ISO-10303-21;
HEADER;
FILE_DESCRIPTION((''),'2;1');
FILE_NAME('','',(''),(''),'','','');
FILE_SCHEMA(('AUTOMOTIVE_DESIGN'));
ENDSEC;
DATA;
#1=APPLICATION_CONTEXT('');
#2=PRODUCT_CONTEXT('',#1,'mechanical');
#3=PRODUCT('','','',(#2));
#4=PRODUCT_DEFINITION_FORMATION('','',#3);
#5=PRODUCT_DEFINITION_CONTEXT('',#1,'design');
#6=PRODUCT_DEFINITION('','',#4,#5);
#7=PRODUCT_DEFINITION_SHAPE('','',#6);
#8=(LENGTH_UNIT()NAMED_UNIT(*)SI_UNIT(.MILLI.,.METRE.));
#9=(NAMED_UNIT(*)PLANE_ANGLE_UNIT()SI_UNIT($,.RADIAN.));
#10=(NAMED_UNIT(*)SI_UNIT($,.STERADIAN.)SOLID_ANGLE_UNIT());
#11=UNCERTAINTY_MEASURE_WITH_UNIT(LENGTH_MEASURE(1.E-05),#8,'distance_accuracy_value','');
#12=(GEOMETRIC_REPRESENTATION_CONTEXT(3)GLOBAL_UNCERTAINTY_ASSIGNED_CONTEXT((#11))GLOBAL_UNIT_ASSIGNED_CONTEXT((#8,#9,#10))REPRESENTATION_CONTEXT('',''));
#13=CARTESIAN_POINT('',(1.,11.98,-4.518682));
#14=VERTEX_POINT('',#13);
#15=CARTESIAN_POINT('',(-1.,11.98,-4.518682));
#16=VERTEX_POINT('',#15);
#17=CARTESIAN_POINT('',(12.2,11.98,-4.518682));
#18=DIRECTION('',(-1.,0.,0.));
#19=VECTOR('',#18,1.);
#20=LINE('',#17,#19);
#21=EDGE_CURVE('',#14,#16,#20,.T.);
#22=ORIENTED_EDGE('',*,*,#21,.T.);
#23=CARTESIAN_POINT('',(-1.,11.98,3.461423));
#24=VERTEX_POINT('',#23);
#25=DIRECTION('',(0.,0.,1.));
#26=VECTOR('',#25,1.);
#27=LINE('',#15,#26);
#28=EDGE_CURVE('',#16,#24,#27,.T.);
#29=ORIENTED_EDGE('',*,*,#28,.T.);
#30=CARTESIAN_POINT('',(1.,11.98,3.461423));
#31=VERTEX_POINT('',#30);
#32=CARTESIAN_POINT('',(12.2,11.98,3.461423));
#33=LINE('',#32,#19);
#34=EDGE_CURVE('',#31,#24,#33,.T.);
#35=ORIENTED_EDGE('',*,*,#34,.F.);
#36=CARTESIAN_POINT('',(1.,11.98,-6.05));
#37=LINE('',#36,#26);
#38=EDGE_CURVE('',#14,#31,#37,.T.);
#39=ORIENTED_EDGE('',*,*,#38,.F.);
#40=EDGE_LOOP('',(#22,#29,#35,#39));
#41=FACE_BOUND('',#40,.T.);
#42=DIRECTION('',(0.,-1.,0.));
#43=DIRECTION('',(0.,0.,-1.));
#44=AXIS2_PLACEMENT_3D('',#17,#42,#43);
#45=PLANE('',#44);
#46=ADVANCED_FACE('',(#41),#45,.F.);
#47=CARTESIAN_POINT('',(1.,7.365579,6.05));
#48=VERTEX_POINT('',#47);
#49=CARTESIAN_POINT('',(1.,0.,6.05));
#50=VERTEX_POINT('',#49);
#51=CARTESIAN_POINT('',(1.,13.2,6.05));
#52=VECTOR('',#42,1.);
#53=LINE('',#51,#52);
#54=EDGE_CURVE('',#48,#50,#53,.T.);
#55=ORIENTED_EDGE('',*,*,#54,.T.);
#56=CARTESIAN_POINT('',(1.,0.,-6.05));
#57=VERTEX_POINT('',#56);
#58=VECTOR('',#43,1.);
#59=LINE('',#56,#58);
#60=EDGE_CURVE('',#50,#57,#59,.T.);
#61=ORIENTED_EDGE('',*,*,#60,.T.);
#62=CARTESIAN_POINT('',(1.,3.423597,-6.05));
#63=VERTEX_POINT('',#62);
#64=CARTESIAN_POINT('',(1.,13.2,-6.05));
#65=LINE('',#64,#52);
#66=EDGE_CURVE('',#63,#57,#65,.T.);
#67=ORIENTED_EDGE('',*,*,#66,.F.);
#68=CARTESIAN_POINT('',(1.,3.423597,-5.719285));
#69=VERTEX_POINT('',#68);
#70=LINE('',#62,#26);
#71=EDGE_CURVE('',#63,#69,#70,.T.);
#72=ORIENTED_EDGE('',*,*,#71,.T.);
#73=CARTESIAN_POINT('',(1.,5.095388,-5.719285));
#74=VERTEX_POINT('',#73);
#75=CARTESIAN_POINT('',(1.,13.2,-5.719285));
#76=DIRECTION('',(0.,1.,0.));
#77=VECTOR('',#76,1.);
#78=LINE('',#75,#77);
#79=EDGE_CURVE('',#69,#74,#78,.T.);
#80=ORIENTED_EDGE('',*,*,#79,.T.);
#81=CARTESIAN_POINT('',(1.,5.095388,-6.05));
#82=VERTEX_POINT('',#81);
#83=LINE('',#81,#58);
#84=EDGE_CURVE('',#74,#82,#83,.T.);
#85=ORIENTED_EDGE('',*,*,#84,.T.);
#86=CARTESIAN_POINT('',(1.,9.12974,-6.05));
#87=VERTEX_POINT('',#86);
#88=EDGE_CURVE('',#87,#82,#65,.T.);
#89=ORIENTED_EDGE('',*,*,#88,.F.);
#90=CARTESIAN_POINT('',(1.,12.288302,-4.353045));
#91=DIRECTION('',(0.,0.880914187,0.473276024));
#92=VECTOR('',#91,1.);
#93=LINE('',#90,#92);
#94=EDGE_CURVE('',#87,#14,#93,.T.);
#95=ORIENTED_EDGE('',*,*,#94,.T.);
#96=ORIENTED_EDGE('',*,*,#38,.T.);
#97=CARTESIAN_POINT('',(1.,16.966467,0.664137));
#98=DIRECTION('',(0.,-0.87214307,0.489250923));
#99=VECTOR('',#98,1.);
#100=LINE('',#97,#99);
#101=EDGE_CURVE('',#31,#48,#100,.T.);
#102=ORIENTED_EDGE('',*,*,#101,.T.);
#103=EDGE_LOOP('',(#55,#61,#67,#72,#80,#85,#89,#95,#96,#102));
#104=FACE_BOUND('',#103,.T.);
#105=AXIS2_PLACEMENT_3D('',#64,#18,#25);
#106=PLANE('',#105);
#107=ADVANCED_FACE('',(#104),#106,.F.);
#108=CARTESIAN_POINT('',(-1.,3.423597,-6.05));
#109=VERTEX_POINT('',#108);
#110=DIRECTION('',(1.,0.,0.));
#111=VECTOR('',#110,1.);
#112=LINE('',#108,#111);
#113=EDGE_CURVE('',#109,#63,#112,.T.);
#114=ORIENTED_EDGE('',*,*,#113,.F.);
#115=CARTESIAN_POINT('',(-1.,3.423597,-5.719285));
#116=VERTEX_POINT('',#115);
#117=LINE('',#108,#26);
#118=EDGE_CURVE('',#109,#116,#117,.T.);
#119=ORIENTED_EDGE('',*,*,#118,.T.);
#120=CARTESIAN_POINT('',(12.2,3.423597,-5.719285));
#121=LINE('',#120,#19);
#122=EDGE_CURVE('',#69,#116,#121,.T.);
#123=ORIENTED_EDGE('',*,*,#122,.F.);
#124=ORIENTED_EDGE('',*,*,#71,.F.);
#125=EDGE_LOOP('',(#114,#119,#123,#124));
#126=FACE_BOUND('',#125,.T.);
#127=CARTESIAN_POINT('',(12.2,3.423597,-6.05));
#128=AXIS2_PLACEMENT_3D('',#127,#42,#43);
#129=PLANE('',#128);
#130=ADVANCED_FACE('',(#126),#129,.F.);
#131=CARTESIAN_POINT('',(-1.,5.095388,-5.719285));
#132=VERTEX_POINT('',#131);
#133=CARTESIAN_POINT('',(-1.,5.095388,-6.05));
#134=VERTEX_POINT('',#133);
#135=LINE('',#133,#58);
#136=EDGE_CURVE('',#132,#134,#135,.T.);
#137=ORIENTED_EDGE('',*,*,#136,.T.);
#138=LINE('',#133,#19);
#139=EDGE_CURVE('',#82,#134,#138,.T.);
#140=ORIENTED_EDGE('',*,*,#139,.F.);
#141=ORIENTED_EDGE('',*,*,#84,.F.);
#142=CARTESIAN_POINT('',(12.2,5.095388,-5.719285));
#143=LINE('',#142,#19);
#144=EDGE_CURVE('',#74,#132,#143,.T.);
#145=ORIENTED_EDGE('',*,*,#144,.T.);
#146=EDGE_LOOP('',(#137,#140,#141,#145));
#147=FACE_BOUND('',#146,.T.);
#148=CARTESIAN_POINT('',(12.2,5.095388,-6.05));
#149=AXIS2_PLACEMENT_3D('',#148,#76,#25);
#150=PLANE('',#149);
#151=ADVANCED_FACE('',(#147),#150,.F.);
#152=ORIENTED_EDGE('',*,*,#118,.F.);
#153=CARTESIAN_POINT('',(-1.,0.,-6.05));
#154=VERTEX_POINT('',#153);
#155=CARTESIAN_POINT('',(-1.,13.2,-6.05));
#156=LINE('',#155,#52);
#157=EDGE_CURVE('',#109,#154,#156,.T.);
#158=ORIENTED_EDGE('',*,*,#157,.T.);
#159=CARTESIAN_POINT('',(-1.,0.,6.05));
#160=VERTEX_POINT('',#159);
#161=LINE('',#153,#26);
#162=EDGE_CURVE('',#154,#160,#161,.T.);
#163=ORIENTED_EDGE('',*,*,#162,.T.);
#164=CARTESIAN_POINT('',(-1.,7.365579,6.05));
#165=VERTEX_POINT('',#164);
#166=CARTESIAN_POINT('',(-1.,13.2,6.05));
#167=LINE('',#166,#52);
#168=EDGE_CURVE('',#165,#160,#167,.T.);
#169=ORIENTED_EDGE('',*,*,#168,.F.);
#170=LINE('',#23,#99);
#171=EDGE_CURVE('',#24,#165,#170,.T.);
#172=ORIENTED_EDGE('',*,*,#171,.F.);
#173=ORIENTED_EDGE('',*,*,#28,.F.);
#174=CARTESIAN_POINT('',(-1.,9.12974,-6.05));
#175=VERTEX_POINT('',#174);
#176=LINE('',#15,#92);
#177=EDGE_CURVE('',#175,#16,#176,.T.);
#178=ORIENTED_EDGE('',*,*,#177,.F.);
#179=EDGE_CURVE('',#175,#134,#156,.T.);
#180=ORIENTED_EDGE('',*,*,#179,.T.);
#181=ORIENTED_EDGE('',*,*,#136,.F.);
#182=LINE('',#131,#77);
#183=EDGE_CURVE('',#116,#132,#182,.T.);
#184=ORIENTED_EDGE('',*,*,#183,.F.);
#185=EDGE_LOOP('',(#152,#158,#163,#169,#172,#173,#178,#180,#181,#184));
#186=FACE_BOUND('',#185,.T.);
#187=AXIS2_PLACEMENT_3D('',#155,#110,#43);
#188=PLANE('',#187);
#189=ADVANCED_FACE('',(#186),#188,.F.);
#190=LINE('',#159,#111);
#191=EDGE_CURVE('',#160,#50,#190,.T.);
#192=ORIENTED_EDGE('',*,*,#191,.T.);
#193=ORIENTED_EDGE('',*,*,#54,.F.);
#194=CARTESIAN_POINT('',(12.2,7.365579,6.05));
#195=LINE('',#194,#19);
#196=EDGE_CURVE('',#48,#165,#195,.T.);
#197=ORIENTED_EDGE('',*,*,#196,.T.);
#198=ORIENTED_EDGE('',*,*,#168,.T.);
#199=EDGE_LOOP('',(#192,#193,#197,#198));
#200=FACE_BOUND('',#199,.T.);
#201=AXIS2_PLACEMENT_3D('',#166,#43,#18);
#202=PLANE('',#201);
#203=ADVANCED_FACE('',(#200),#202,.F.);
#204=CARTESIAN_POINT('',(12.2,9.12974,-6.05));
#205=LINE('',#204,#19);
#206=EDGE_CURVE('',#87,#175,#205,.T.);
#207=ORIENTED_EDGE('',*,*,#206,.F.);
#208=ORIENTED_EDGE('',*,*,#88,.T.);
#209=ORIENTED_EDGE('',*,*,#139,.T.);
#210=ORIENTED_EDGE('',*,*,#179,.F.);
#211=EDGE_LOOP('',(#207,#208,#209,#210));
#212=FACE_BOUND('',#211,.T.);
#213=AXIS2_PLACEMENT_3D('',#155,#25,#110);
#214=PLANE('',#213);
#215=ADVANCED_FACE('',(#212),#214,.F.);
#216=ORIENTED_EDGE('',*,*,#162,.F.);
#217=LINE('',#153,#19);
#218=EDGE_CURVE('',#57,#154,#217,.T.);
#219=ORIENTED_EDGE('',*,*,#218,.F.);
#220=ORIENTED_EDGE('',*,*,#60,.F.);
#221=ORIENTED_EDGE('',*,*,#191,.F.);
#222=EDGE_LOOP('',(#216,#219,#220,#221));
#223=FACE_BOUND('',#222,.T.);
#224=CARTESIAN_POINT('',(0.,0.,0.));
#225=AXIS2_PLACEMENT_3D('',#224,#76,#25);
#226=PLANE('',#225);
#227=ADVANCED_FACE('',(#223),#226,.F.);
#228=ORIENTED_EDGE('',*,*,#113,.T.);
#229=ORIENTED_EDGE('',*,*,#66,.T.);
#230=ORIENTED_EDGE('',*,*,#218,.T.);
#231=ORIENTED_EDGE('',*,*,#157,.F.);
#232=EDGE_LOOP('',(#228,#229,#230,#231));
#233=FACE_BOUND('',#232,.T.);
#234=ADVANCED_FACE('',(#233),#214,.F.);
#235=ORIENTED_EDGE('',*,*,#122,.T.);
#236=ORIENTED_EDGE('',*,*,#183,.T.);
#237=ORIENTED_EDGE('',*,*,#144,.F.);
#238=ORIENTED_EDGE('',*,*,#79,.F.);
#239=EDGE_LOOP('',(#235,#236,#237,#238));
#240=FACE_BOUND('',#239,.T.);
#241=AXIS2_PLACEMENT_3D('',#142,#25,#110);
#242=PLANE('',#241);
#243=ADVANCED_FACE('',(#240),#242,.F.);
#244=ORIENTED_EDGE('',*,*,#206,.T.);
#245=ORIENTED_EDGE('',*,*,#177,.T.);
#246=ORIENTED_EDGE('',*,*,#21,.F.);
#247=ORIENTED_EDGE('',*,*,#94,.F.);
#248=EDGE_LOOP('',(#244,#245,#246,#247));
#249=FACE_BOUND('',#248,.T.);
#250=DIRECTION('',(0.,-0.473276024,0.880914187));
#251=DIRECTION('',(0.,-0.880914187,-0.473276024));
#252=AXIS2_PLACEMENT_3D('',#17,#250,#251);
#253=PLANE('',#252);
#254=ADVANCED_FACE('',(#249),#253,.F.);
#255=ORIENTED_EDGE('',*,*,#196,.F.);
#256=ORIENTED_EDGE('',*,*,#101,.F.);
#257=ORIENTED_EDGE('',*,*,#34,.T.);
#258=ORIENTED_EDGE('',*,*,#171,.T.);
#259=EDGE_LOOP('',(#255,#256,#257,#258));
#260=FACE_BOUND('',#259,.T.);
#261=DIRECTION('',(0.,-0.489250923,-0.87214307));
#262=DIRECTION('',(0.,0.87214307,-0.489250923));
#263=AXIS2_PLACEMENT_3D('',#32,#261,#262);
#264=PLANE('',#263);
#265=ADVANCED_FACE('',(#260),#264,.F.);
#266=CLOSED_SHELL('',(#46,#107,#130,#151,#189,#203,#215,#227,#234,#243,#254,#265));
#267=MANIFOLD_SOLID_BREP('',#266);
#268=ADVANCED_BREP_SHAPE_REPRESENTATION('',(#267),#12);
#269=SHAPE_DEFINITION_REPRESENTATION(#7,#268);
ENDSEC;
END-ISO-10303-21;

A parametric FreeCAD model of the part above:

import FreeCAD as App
import Part
import Sketcher
Q = App.Units.Quantity


def add_polygon(sketch, points):
    """Adds a closed chain of lines whose ends are joined by coincident constraints."""
    first, n = sketch.GeometryCount, len(points)
    for a, b in zip(points, points[1:] + points[:1]):
        sketch.addGeometry(Part.LineSegment(App.Vector(*a, 0), App.Vector(*b, 0)), False)
    for i in range(n):
        sketch.addConstraint(Sketcher.Constraint("Coincident", first + i, 2, first + (i + 1) % n, 1))

doc = App.newDocument("Part")
body = doc.addObject("PartDesign::Body", "Body")

# Sketch on XZ plane
sketch1 = body.newObject("Sketcher::SketchObject", "Sketch")
sketch1.AttachmentSupport = (doc.getObject("XZ_Plane"), [""])
sketch1.MapMode = "FlatFace"
add_polygon(sketch1, [(-1, -6), (-1, 6), (1, 6), (1, -6)])  # lines 0-3
sketch1.addConstraint([
    Sketcher.Constraint("Vertical", 0),
    Sketcher.Constraint("Horizontal", 1),
    Sketcher.Constraint("Vertical", 2),
    Sketcher.Constraint("Horizontal", 3),
    Sketcher.Constraint("Symmetric", 0, 2, 2, 2, -1, 1),
    Sketcher.Constraint("DistanceX", 1, 1, 1, 2, Q("2 mm")),
    Sketcher.Constraint("DistanceY", 0, 1, 0, 2, Q("12.1 mm")),
])
pad1 = body.newObject("PartDesign::Pad", "Pad")
pad1.Profile = sketch1
pad1.Length = 13.2
pad1.Reversed = True

# Sketch on YZ plane
sketch2 = body.newObject("Sketcher::SketchObject", "Sketch001")
sketch2.AttachmentSupport = (doc.getObject("YZ_Plane"), [""])
sketch2.MapMode = "FlatFace"
sketch2.AttachmentOffset = App.Placement(App.Vector(0, 0, -1), App.Rotation())
add_polygon(sketch2, [(5.1, -6.05), (3.42, -6.05), (3.42, -5.72), (5.1, -5.72)])  # lines 0-3
add_polygon(sketch2, [(9.13, -6.05), (11.98, -4.52), (11.98, 3.46), (7.37, 6.05), (13.2, 6.05), (13.2, -6.05)])  # lines 4-9
sketch2.addConstraint([
    Sketcher.Constraint("Horizontal", 0),
    Sketcher.Constraint("Vertical", 1),
    Sketcher.Constraint("Horizontal", 2),
    Sketcher.Constraint("Vertical", 3),
    Sketcher.Constraint("Vertical", 5),
    Sketcher.Constraint("Horizontal", 7),
    Sketcher.Constraint("Vertical", 8),
    Sketcher.Constraint("Horizontal", 9),
    Sketcher.Constraint("Horizontal", 3, 2, 8, 2),
    Sketcher.Constraint("DistanceY", 8, 2, 8, 1, Q("12.1 mm")),
    Sketcher.Constraint("DistanceX", -1, 1, 7, 2, Q("13.2 mm")),
    Sketcher.Constraint("DistanceY", 0, 2, -1, 1, Q("6.05 mm")),
    Sketcher.Constraint("DistanceX", -1, 1, 4, 2, Q("11.98 mm")),
    Sketcher.Constraint("Distance", 6, Q("5.290899 mm")),
    Sketcher.Constraint("DistanceX", 0, 2, 0, 1, Q("1.671791 mm")),
    Sketcher.Constraint("DistanceX", 7, 1, 7, 2, Q("5.834421 mm")),
    Sketcher.Constraint("DistanceX", 9, 2, 9, 1, Q("4.07026 mm")),
    Sketcher.Constraint("Distance", 4, Q("3.235571 mm")),
    Sketcher.Constraint("DistanceY", 1, 1, 1, 2, Q("0.330715 mm")),
    Sketcher.Constraint("DistanceX", -1, 1, 2, 2, Q("5.095388 mm")),
])
pocket1 = body.newObject("PartDesign::Pocket", "Pocket")
pocket1.Profile = sketch2
pocket1.Length = 13.2
pocket1.Reversed = True

doc.recompute()
